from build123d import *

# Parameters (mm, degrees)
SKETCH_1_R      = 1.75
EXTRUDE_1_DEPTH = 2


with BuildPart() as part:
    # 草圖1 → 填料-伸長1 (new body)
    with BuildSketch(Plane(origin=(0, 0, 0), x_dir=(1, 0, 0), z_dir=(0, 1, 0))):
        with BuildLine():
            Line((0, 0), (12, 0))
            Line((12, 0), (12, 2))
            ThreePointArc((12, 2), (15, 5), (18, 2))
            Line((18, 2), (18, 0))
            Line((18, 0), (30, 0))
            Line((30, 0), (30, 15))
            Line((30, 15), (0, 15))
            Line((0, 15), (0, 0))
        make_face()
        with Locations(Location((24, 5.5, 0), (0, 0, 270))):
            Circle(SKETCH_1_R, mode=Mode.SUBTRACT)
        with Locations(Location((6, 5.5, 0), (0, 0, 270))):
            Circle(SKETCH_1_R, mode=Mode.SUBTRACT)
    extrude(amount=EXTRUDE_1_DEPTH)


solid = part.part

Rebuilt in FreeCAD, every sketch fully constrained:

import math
import FreeCAD as App
import Part
import Sketcher
from FreeCAD import Vector

doc = App.newDocument("Part")
body = doc.addObject("PartDesign::Body", "Body")

# Sketch on XZ plane
sketch1 = body.newObject("Sketcher::SketchObject", "Sketch")
sketch1.AttachmentSupport = (doc.getObject("XZ_Plane"), [""])
sketch1.MapMode = "FlatFace"
sketch1.addGeometry(Part.LineSegment(Vector(0, 0, 0), Vector(12, 0, 0)), False)
sketch1.addGeometry(Part.LineSegment(Vector(12, 0, 0), Vector(12, -2, 0)), False)
sketch1.addGeometry(Part.ArcOfCircle(Part.Circle(Vector(15, -2, 0), Vector(0, 0, 1), 3), math.radians(180), math.radians(360)), False)
sketch1.addGeometry(Part.LineSegment(Vector(18, -2, 0), Vector(18, 0, 0)), False)
sketch1.addGeometry(Part.LineSegment(Vector(18, 0, 0), Vector(30, 0, 0)), False)
sketch1.addGeometry(Part.LineSegment(Vector(30, 0, 0), Vector(30, -15, 0)), False)
sketch1.addGeometry(Part.LineSegment(Vector(30, -15, 0), Vector(0, -15, 0)), False)
sketch1.addGeometry(Part.LineSegment(Vector(0, -15, 0), Vector(0, 0, 0)), False)
sketch1.addGeometry(Part.Circle(Vector(6, -5.5, 0), Vector(0, 0, 1), 1.8), False)
sketch1.addGeometry(Part.Circle(Vector(24, -5.5, 0), Vector(0, 0, 1), 1.8), False)
sketch1.addConstraint(Sketcher.Constraint("Coincident", 0, 2, 1, 1))
sketch1.addConstraint(Sketcher.Constraint("Tangent", 1, 2, 2, 1))
sketch1.addConstraint(Sketcher.Constraint("Tangent", 2, 2, 3, 1))
sketch1.addConstraint(Sketcher.Constraint("Coincident", 3, 2, 4, 1))
sketch1.addConstraint(Sketcher.Constraint("Coincident", 4, 2, 5, 1))
sketch1.addConstraint(Sketcher.Constraint("Coincident", 5, 2, 6, 1))
sketch1.addConstraint(Sketcher.Constraint("Coincident", 6, 2, 7, 1))
sketch1.addConstraint(Sketcher.Constraint("Coincident", 7, 2, 0, 1))
sketch1.addConstraint(Sketcher.Constraint("Horizontal", 0))
sketch1.addConstraint(Sketcher.Constraint("Vertical", 1))
sketch1.addConstraint(Sketcher.Constraint("Vertical", 3))
sketch1.addConstraint(Sketcher.Constraint("Horizontal", 4))
sketch1.addConstraint(Sketcher.Constraint("Vertical", 5))
sketch1.addConstraint(Sketcher.Constraint("Horizontal", 6))
sketch1.addConstraint(Sketcher.Constraint("Vertical", 7))
sketch1.addConstraint(Sketcher.Constraint("Coincident", 7, 2, -1, 1))
sketch1.addConstraint(Sketcher.Constraint("Equal", 8, 9))
sketch1.addConstraint(Sketcher.Constraint("PointOnObject", 3, 2, -1))
sketch1.addConstraint(Sketcher.Constraint("Horizontal", 8, 3, 9, 3))
sketch1.addConstraint(Sketcher.Constraint("Equal", 0, 4))
sketch1.addConstraint(Sketcher.Constraint("Radius", 2, 3.0))
sketch1.addConstraint(Sketcher.Constraint("Diameter", 8, 3.5))
sketch1.addConstraint(Sketcher.Constraint("DistanceX", 0, 1, 0, 2, 12.0))
sketch1.addConstraint(Sketcher.Constraint("DistanceY", 1, 2, 1, 1, 2.0))
sketch1.addConstraint(Sketcher.Constraint("DistanceY", 5, 2, 5, 1, 15.0))
sketch1.addConstraint(Sketcher.Constraint("DistanceX", -1, 1, 8, 3, 6.0))
sketch1.addConstraint(Sketcher.Constraint("DistanceX", -1, 1, 9, 3, 24.0))
sketch1.addConstraint(Sketcher.Constraint("DistanceY", 8, 3, -1, 1, 5.5))
pad1 = body.newObject("PartDesign::Pad", "Pad")
pad1.Profile = sketch1
pad1.Length = 2
pad1.Reversed = True

doc.recompute()
